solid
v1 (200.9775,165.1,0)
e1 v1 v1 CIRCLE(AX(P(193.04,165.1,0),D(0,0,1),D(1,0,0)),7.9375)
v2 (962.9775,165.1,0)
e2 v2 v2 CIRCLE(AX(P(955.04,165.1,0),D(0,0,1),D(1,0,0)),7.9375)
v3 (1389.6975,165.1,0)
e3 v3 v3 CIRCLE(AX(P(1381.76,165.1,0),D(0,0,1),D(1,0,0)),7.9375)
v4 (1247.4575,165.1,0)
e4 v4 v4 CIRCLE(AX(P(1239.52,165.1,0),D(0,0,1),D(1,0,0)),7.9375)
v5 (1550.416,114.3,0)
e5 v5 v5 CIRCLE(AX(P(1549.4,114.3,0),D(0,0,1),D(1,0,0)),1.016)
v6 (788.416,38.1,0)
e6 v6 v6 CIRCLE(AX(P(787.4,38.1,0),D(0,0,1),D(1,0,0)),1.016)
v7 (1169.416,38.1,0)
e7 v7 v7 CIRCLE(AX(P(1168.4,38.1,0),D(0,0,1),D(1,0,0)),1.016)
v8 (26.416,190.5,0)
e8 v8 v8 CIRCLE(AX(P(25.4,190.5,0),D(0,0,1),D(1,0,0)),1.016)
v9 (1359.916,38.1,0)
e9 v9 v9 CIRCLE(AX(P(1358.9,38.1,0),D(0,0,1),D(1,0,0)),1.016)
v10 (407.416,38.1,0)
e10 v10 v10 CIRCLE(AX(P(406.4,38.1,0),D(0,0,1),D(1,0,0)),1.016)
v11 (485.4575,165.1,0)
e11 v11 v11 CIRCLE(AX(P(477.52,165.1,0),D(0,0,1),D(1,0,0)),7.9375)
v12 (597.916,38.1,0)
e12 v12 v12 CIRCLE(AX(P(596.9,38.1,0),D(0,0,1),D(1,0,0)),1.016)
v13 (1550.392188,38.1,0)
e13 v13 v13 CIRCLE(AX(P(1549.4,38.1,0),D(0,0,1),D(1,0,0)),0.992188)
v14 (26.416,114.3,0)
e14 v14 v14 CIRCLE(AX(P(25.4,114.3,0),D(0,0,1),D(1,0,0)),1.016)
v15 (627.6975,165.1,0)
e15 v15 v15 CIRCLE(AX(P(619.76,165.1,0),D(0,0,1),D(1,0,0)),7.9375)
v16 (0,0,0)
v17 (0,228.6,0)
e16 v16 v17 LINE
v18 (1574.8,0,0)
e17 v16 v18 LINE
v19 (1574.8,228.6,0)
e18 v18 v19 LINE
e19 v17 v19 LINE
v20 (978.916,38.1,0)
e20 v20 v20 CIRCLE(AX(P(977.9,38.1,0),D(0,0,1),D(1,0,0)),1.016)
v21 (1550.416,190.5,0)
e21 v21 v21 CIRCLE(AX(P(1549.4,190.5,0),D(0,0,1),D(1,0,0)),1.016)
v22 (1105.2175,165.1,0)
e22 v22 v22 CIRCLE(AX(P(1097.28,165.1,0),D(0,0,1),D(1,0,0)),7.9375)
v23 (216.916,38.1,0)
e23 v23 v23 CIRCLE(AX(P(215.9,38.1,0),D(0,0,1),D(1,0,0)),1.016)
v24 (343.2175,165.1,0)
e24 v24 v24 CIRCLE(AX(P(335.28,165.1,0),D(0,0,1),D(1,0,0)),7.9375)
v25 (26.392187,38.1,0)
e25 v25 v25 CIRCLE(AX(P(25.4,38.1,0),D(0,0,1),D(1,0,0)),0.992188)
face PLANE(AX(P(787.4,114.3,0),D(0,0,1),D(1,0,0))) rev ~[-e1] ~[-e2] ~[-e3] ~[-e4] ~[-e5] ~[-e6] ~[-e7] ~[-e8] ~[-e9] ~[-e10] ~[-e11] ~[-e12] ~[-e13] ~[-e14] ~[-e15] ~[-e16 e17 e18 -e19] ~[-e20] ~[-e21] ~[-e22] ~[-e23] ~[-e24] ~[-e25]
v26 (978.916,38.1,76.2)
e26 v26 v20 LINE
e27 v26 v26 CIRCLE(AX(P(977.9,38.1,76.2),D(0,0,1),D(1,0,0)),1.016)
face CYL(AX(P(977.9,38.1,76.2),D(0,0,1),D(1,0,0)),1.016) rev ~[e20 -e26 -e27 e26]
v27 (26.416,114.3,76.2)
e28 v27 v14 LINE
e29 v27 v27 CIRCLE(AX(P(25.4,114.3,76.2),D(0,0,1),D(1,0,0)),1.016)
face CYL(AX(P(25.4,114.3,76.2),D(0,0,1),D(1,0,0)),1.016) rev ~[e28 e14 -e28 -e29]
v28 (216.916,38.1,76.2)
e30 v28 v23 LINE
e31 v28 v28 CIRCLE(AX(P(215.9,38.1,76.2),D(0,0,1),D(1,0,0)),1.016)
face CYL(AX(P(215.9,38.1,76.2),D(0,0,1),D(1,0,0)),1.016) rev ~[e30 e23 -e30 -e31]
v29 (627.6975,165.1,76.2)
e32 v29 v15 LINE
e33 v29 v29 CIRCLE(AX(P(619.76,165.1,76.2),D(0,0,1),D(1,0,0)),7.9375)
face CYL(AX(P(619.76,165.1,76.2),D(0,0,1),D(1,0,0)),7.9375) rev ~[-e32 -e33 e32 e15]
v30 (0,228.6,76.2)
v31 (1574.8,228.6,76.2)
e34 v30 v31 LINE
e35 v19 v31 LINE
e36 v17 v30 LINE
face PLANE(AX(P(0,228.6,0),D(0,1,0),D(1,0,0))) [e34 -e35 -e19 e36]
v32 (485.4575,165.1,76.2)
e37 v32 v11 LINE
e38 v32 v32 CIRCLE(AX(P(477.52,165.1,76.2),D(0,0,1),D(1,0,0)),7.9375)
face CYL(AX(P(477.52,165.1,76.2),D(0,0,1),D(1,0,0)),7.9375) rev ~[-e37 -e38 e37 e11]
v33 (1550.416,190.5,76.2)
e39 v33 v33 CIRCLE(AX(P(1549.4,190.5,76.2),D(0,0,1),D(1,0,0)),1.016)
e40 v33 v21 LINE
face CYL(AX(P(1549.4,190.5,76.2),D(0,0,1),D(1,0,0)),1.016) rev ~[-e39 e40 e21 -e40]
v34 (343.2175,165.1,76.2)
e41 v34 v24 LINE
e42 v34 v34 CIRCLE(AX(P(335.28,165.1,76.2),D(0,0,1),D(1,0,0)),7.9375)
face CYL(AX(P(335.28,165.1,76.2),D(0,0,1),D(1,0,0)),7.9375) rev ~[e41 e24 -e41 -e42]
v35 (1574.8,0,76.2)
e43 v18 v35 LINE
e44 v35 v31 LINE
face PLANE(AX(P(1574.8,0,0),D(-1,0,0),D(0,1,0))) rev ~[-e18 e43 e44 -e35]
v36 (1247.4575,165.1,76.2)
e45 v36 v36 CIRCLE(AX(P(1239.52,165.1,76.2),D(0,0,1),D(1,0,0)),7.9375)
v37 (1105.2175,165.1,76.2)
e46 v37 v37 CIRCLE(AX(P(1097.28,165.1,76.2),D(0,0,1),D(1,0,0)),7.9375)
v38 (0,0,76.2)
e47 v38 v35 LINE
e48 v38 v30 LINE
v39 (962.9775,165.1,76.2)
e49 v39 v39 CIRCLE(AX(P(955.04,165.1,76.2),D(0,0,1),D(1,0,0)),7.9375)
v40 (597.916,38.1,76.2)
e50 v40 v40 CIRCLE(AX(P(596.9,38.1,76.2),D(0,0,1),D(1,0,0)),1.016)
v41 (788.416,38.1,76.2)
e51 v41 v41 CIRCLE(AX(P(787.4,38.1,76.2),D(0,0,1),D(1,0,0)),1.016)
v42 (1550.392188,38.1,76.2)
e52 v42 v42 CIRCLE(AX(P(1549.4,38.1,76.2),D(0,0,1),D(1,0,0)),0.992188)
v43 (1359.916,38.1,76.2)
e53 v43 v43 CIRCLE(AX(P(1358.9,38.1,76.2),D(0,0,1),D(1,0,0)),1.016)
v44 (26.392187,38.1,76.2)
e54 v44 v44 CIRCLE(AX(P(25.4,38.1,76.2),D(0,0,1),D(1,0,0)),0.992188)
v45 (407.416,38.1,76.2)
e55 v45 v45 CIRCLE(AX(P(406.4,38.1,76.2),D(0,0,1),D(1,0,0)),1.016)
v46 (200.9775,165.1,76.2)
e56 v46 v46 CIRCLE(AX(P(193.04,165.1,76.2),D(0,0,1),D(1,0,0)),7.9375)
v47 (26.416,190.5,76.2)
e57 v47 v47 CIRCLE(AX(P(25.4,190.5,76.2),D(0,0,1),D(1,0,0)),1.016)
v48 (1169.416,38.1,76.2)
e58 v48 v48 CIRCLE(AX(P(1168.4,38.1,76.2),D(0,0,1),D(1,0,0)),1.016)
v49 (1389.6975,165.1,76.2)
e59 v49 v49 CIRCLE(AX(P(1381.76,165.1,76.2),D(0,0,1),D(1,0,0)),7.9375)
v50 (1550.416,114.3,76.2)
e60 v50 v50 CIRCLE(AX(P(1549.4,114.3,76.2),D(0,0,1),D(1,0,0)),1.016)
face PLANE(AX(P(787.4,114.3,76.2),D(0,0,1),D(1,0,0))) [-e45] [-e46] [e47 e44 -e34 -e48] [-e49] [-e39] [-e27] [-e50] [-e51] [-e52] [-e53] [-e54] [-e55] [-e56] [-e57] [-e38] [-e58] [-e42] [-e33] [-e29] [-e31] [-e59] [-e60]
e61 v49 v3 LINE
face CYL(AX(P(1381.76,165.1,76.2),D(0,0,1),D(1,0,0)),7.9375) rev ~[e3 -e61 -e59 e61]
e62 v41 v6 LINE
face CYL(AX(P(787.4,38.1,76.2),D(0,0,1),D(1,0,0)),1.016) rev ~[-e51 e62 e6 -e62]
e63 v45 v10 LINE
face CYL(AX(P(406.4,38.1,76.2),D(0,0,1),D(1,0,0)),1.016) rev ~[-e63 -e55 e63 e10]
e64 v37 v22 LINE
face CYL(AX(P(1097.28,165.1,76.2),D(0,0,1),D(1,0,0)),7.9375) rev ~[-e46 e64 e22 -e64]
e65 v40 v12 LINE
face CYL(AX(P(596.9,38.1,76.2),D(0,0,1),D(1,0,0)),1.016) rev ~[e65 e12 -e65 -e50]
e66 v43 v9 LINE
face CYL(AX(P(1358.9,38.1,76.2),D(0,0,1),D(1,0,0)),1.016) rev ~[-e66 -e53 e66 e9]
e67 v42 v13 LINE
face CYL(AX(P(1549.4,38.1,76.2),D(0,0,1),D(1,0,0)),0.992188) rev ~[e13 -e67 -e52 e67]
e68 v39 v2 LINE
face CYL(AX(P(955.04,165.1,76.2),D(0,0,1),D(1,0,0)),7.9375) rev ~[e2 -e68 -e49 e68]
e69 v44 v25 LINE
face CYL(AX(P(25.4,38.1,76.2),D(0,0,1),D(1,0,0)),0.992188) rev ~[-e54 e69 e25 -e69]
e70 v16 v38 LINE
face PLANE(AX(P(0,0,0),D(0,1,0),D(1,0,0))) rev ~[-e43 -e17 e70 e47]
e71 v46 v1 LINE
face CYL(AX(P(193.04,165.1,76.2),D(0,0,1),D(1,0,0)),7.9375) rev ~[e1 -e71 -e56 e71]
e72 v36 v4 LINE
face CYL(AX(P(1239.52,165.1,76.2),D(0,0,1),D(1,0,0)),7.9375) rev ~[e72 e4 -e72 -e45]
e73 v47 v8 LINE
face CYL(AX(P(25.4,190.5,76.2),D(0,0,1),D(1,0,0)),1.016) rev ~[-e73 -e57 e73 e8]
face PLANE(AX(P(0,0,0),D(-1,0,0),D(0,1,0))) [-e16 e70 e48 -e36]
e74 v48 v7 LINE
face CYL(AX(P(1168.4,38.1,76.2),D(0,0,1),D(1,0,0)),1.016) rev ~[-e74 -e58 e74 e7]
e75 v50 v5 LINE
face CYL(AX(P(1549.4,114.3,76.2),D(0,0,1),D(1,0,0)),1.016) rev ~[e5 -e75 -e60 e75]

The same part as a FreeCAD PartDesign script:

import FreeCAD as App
import Part
import Sketcher
Q = App.Units.Quantity

doc = App.newDocument("Part")
params = doc.addObject("Spreadsheet::Sheet", "Params")
for row, (alias, value) in enumerate([
    ("sketch1_width", "62 in"),
    ("sketch1_height", "9 in"),
    ("pad1_length", "3 in"),
    ("sketch2_diameter", "0.625 in"),
    ("sketch3_diameter", "0.08 in"),
    ("sketch3_diameter2", "0.078125 in"),
    ("pocket2_length", "3 in"),
], start=1):
    params.set(f"A{row}", alias)
    params.set(f"B{row}", "=" + value)
    params.setAlias(f"B{row}", alias)

body = doc.addObject("PartDesign::Body", "Body")

# Sketch on XY plane
sketch1 = body.newObject("Sketcher::SketchObject", "Sketch")
sketch1.AttachmentSupport = (doc.getObject("XY_Plane"), [""])
sketch1.MapMode = "FlatFace"
sketch1.addGeometry([
    Part.LineSegment(App.Vector(0, 229, 0), App.Vector(0, 0, 0)),
    Part.LineSegment(App.Vector(0, 0, 0), App.Vector(1575, 0, 0)),
    Part.LineSegment(App.Vector(1575, 0, 0), App.Vector(1575, 229, 0)),
    Part.LineSegment(App.Vector(1575, 229, 0), App.Vector(0, 229, 0)),
], False)
sketch1.addConstraint([
    Sketcher.Constraint("Coincident", 0, 2, 1, 1),
    Sketcher.Constraint("Coincident", 1, 2, 2, 1),
    Sketcher.Constraint("Coincident", 2, 2, 3, 1),
    Sketcher.Constraint("Coincident", 3, 2, 0, 1),
    Sketcher.Constraint("Vertical", 0),
    Sketcher.Constraint("Horizontal", 1),
    Sketcher.Constraint("Vertical", 2),
    Sketcher.Constraint("Horizontal", 3),
    Sketcher.Constraint("Coincident", 0, 2, -1, 1),
    Sketcher.Constraint("DistanceX", 1, 1, 1, 2, Q("62 in")),
    Sketcher.Constraint("DistanceY", 0, 2, 0, 1, Q("9 in")),
])
sketch1.setExpression("Constraints[9]", "Params.sketch1_width")
sketch1.setExpression("Constraints[10]", "Params.sketch1_height")
pad1 = body.newObject("PartDesign::Pad", "Pad")
pad1.Profile = sketch1
pad1.setExpression("Length", "Params.pad1_length")

# Sketch on XY plane
sketch2 = body.newObject("Sketcher::SketchObject", "Sketch001")
sketch2.AttachmentSupport = (doc.getObject("XY_Plane"), [""])
sketch2.MapMode = "FlatFace"
sketch2.AttachmentOffset = App.Placement(App.Vector(0, 0, 3 * 25.4), App.Rotation())
sketch2.addGeometry([
    Part.Circle(App.Vector(193, 165, 0), App.Vector(0, 0, 1), 8),  # 0
    Part.Circle(App.Vector(335, 165, 0), App.Vector(0, 0, 1), 8),  # 1
    Part.Circle(App.Vector(478, 165, 0), App.Vector(0, 0, 1), 8),  # 2
    Part.Circle(App.Vector(620, 165, 0), App.Vector(0, 0, 1), 8),  # 3
    Part.Circle(App.Vector(955, 165, 0), App.Vector(0, 0, 1), 8),  # 4
    Part.Circle(App.Vector(1097, 165, 0), App.Vector(0, 0, 1), 8),  # 5
    Part.Circle(App.Vector(1240, 165, 0), App.Vector(0, 0, 1), 8),  # 6
    Part.Circle(App.Vector(1382, 165, 0), App.Vector(0, 0, 1), 8),  # 7
], False)
sketch2.addConstraint([
    Sketcher.Constraint("Equal", 0, 1),
    Sketcher.Constraint("Equal", 1, 2),
    Sketcher.Constraint("Equal", 2, 3),
    Sketcher.Constraint("Equal", 3, 4),
    Sketcher.Constraint("Equal", 4, 5),
    Sketcher.Constraint("Equal", 5, 6),
    Sketcher.Constraint("Equal", 6, 7),
    Sketcher.Constraint("Horizontal", 0, 3, 1, 3),
    Sketcher.Constraint("Horizontal", 1, 3, 2, 3),
    Sketcher.Constraint("Horizontal", 2, 3, 3, 3),
    Sketcher.Constraint("Horizontal", 3, 3, 4, 3),
    Sketcher.Constraint("Horizontal", 4, 3, 5, 3),
    Sketcher.Constraint("Horizontal", 5, 3, 6, 3),
    Sketcher.Constraint("Horizontal", 6, 3, 7, 3),
    Sketcher.Constraint("Diameter", 0, Q("0.625 in")),
    Sketcher.Constraint("DistanceX", 0, 3, 4, 3, Q("30 in")),
    Sketcher.Constraint("DistanceX", 1, 3, 5, 3, Q("30 in")),
    Sketcher.Constraint("DistanceX", 2, 3, 6, 3, Q("30 in")),
    Sketcher.Constraint("DistanceX", 3, 3, 7, 3, Q("30 in")),
    Sketcher.Constraint("DistanceX", -1, 1, 0, 3, Q("7.6 in")),
    Sketcher.Constraint("DistanceY", -1, 1, 0, 3, Q("6.5 in")),
    Sketcher.Constraint("DistanceX", -1, 1, 1, 3, Q("13.2 in")),
    Sketcher.Constraint("DistanceX", -1, 1, 2, 3, Q("18.8 in")),
    Sketcher.Constraint("DistanceX", -1, 1, 3, 3, Q("24.4 in")),
])
sketch2.setExpression("Constraints[14]", "Params.sketch2_diameter")
pocket1 = body.newObject("PartDesign::Pocket", "Pocket")
pocket1.Profile = sketch2
pocket1.Type = "ThroughAll"

# Sketch on XY plane
sketch3 = body.newObject("Sketcher::SketchObject", "Sketch002")
sketch3.AttachmentSupport = (doc.getObject("XY_Plane"), [""])
sketch3.MapMode = "FlatFace"
sketch3.AttachmentOffset = App.Placement(App.Vector(0, 0, 3 * 25.4), App.Rotation())
sketch3.addGeometry([
    Part.Circle(App.Vector(1549.4, 38.1, 0), App.Vector(0, 0, 1), 1),  # 0
    Part.Circle(App.Vector(1549.4, 190.5, 0), App.Vector(0, 0, 1), 1),  # 1
    Part.Circle(App.Vector(1549.4, 114.3, 0), App.Vector(0, 0, 1), 1),  # 2
    Part.Circle(App.Vector(25.4, 38.1, 0), App.Vector(0, 0, 1), 1),  # 3
    Part.Circle(App.Vector(25.4, 114.3, 0), App.Vector(0, 0, 1), 1),  # 4
    Part.Circle(App.Vector(25.4, 190.5, 0), App.Vector(0, 0, 1), 1),  # 5
    Part.Circle(App.Vector(215.9, 38.1, 0), App.Vector(0, 0, 1), 1),  # 6
    Part.Circle(App.Vector(406.4, 38.1, 0), App.Vector(0, 0, 1), 1),  # 7
    Part.Circle(App.Vector(596.9, 38.1, 0), App.Vector(0, 0, 1), 1),  # 8
    Part.Circle(App.Vector(787.4, 38.1, 0), App.Vector(0, 0, 1), 1),  # 9
    Part.Circle(App.Vector(977.9, 38.1, 0), App.Vector(0, 0, 1), 1),  # 10
    Part.Circle(App.Vector(1168.4, 38.1, 0), App.Vector(0, 0, 1), 1),  # 11
    Part.Circle(App.Vector(1358.9, 38.1, 0), App.Vector(0, 0, 1), 1),  # 12
], False)
sketch3.addConstraint([
    Sketcher.Constraint("Equal", 1, 2),
    Sketcher.Constraint("Equal", 0, 3),
    Sketcher.Constraint("Equal", 2, 4),
    Sketcher.Constraint("Equal", 4, 5),
    Sketcher.Constraint("Equal", 5, 6),
    Sketcher.Constraint("Equal", 6, 7),
    Sketcher.Constraint("Equal", 7, 8),
    Sketcher.Constraint("Equal", 8, 9),
    Sketcher.Constraint("Equal", 9, 10),
    Sketcher.Constraint("Equal", 10, 11),
    Sketcher.Constraint("Equal", 11, 12),
    Sketcher.Constraint("Horizontal", 0, 3, 3, 3),
    Sketcher.Constraint("Horizontal", 2, 3, 4, 3),
    Sketcher.Constraint("Horizontal", 1, 3, 5, 3),
    Sketcher.Constraint("Horizontal", 3, 3, 6, 3),
    Sketcher.Constraint("Horizontal", 6, 3, 7, 3),
    Sketcher.Constraint("Horizontal", 7, 3, 8, 3),
    Sketcher.Constraint("Horizontal", 8, 3, 9, 3),
    Sketcher.Constraint("Horizontal", 9, 3, 10, 3),
    Sketcher.Constraint("Horizontal", 10, 3, 11, 3),
    Sketcher.Constraint("Horizontal", 11, 3, 12, 3),
    Sketcher.Constraint("Vertical", 0, 3, 1, 3),
    Sketcher.Constraint("Vertical", 1, 3, 2, 3),
    Sketcher.Constraint("Vertical", 3, 3, 4, 3),
    Sketcher.Constraint("Vertical", 4, 3, 5, 3),
    Sketcher.Constraint("Diameter", 1, Q("0.08 in")),
    Sketcher.Constraint("Diameter", 0, Q("0.078125 in")),
    Sketcher.Constraint("DistanceX", -1, 1, 0, 3, Q("61 in")),
    Sketcher.Constraint("DistanceX", -1, 1, 3, 3, Q("1 in")),
    Sketcher.Constraint("DistanceX", -1, 1, 7, 3, Q("16 in")),
    Sketcher.Constraint("DistanceX", -1, 1, 9, 3, Q("31 in")),
    Sketcher.Constraint("DistanceX", -1, 1, 11, 3, Q("46 in")),
    Sketcher.Constraint("DistanceY", 0, 3, 1, 3, Q("6 in")),
    Sketcher.Constraint("DistanceY", 0, 3, 2, 3, Q("3 in")),
    Sketcher.Constraint("DistanceX", 6, 3, 8, 3, Q("15 in")),
    Sketcher.Constraint("DistanceX", 8, 3, 10, 3, Q("15 in")),
    Sketcher.Constraint("DistanceX", 10, 3, 12, 3, Q("15 in")),
    Sketcher.Constraint("DistanceY", -1, 1, 0, 3, Q("1.5 in")),
    Sketcher.Constraint("DistanceX", -1, 1, 6, 3, Q("8.5 in")),
])
sketch3.setExpression("Constraints[25]", "Params.sketch3_diameter")
sketch3.setExpression("Constraints[26]", "Params.sketch3_diameter2")
pocket2 = body.newObject("PartDesign::Pocket", "Pocket001")
pocket2.Profile = sketch3
pocket2.setExpression("Length", "Params.pocket2_length")

doc.recompute()
